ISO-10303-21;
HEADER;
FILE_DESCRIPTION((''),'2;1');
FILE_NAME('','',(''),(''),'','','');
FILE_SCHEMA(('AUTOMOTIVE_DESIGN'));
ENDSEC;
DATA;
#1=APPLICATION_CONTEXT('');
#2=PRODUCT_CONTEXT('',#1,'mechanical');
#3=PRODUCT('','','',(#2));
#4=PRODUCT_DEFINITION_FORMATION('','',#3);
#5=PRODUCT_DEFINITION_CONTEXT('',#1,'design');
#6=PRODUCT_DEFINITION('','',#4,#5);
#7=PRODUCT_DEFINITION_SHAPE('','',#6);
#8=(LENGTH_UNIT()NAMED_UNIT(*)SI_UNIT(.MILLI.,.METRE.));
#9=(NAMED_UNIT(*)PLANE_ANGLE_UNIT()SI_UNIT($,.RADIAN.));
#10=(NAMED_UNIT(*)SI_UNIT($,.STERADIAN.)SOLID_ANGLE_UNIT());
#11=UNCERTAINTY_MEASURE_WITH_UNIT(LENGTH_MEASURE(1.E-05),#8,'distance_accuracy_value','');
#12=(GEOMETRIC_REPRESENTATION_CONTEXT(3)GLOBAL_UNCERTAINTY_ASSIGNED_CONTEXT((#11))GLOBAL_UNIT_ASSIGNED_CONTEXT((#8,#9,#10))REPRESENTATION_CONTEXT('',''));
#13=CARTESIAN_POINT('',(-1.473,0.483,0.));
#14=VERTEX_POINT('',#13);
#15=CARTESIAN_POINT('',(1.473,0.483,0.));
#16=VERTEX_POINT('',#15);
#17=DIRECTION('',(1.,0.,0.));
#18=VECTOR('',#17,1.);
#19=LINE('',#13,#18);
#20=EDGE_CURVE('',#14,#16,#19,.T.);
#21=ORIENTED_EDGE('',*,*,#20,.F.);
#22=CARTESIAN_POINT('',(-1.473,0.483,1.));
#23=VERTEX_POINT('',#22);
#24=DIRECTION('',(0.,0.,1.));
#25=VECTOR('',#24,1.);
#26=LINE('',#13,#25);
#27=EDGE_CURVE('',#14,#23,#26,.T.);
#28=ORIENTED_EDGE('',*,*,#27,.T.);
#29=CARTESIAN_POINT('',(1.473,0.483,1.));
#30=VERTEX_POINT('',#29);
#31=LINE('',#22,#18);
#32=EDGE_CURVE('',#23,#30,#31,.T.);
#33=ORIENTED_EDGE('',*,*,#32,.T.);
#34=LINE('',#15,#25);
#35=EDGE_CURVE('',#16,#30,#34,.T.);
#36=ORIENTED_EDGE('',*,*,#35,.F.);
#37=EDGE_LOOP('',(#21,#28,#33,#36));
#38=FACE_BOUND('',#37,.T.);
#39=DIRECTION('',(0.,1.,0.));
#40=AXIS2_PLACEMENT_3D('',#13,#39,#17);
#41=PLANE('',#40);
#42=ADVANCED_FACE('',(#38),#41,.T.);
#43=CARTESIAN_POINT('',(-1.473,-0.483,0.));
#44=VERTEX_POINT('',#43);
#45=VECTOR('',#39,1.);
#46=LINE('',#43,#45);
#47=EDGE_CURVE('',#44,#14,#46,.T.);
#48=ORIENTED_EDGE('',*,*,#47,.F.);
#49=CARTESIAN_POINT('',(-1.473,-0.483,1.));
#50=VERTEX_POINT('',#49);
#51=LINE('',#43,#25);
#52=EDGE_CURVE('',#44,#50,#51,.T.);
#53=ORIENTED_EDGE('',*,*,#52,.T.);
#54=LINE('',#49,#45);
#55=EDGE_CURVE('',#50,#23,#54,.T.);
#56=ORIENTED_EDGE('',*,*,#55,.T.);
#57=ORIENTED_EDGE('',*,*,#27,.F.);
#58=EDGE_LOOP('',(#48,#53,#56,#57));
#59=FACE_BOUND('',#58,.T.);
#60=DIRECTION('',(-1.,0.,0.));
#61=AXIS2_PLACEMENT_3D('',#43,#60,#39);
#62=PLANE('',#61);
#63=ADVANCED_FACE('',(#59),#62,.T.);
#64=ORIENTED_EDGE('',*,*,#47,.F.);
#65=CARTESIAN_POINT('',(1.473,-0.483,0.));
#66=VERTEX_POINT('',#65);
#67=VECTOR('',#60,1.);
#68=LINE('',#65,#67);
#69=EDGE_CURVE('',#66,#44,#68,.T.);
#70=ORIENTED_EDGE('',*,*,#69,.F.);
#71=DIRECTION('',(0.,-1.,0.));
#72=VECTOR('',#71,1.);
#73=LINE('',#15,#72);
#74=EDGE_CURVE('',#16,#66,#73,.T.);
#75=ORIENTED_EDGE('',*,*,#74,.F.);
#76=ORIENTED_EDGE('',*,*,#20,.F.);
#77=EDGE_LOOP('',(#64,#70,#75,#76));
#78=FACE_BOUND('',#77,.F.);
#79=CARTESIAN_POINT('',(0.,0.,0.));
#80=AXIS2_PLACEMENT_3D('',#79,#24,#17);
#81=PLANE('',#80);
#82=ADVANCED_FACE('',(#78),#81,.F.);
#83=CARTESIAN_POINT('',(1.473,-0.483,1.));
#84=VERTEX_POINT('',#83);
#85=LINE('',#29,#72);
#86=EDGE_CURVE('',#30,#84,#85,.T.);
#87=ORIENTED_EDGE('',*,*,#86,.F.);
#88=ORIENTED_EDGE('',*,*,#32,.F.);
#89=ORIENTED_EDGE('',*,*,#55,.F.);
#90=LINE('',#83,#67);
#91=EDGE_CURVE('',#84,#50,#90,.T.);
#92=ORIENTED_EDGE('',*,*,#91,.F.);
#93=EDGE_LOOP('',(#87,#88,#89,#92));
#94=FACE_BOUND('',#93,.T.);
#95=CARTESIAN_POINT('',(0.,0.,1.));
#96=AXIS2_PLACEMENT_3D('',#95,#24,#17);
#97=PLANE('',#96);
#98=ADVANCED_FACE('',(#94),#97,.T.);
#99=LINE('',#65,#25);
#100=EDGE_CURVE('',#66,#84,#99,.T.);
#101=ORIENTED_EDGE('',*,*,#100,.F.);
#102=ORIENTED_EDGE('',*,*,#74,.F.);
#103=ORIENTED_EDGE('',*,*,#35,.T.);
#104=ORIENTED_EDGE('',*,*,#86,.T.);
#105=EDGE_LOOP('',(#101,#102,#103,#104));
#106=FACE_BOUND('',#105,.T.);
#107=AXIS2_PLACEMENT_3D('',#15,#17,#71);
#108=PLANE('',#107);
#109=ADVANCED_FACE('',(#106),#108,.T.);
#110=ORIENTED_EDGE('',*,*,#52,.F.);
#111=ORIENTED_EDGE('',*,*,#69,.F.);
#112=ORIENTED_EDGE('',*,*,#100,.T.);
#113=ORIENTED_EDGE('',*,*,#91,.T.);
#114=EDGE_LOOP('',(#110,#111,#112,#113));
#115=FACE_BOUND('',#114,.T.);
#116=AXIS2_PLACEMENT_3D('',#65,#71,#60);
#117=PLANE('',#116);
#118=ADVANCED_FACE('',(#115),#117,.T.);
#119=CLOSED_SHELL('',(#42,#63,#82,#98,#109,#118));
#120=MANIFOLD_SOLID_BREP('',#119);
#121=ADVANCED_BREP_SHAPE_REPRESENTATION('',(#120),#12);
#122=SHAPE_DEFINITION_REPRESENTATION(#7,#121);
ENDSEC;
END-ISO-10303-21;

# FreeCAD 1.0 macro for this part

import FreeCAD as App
import Part
import Sketcher

doc = App.newDocument("Part")
body = doc.addObject("PartDesign::Body", "Body")

# Sketch on XY plane
sketch1 = body.newObject("Sketcher::SketchObject", "Sketch")
sketch1.AttachmentSupport = (doc.getObject("XY_Plane"), [""])
sketch1.MapMode = "FlatFace"
sketch1.addGeometry(Part.LineSegment(App.Vector(1.5, 0.5, 0), App.Vector(-1.5, 0.5, 0)), False)
sketch1.addGeometry(Part.LineSegment(App.Vector(-1.5, 0.5, 0), App.Vector(-1.5, -0.5, 0)), False)
sketch1.addGeometry(Part.LineSegment(App.Vector(-1.5, -0.5, 0), App.Vector(1.5, -0.5, 0)), False)
sketch1.addGeometry(Part.LineSegment(App.Vector(1.5, -0.5, 0), App.Vector(1.5, 0.5, 0)), False)
sketch1.addConstraint(Sketcher.Constraint("Coincident", 0, 2, 1, 1))
sketch1.addConstraint(Sketcher.Constraint("Coincident", 1, 2, 2, 1))
sketch1.addConstraint(Sketcher.Constraint("Coincident", 2, 2, 3, 1))
sketch1.addConstraint(Sketcher.Constraint("Coincident", 3, 2, 0, 1))
sketch1.addConstraint(Sketcher.Constraint("Horizontal", 0))
sketch1.addConstraint(Sketcher.Constraint("Vertical", 1))
sketch1.addConstraint(Sketcher.Constraint("Horizontal", 2))
sketch1.addConstraint(Sketcher.Constraint("Vertical", 3))
sketch1.addConstraint(Sketcher.Constraint("Symmetric", 0, 2, 2, 2, -1, 1))
sketch1.addConstraint(Sketcher.Constraint("DistanceX", 0, 2, 0, 1, 2.946))
sketch1.addConstraint(Sketcher.Constraint("DistanceY", 1, 2, 1, 1, 0.966))
pad1 = body.newObject("PartDesign::Pad", "Pad")
pad1.Profile = sketch1
pad1.Length = 1

doc.recompute()
